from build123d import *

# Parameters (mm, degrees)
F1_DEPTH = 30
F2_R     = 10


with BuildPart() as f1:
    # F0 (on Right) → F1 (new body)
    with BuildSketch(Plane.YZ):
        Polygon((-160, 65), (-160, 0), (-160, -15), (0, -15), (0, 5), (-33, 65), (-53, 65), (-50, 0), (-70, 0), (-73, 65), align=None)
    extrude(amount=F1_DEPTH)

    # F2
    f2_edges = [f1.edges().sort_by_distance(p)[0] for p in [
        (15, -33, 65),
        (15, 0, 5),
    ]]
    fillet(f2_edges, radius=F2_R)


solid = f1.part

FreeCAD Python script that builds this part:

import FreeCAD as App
import Part
import Sketcher
from FreeCAD import Vector
Q = App.Units.Quantity


def edges_at(feature, points):
    """Names of the edges that pass closest to the given points."""
    edges = feature.Shape.Edges
    near = lambda p: min(range(len(edges)), key=lambda i: edges[i].distToShape(Part.Vertex(*p))[0])
    return sorted({f"Edge{near(p) + 1}" for p in points})

doc = App.newDocument("Part")
params = doc.addObject("Spreadsheet::Sheet", "Params")
for row, (alias, value) in enumerate([
    ("sketch1_width", "160 mm"),
    ("sketch1_width2", "20 mm"),
    ("sketch1_width3", "87 mm"),
    ("sketch1_height", "80 mm"),
    ("pad1_length", "30 mm"),
    ("fillet_radius", "10 mm"),
], start=1):
    params.set(f"A{row}", alias)
    params.set(f"B{row}", "=" + value)
    params.setAlias(f"B{row}", alias)

body = doc.addObject("PartDesign::Body", "Body")

# Sketch on YZ plane
sketch1 = doc.addObject("Sketcher::SketchObject", "Sketch")
body.addObject(sketch1)
sketch1.AttachmentSupport = (doc.YZ_Plane, [""])
sketch1.MapMode = "FlatFace"
sketch1.addGeometry(Part.LineSegment(Vector(-160, 65, 0), Vector(-160, -15, 0)), False)
sketch1.addGeometry(Part.LineSegment(Vector(-160, -15, 0), Vector(0, -15, 0)), False)
sketch1.addGeometry(Part.LineSegment(Vector(0, -15, 0), Vector(0, 5, 0)), False)
sketch1.addGeometry(Part.LineSegment(Vector(0, 5, 0), Vector(-33, 65, 0)), False)
sketch1.addGeometry(Part.LineSegment(Vector(-33, 65, 0), Vector(-53, 65, 0)), False)
sketch1.addGeometry(Part.LineSegment(Vector(-53, 65, 0), Vector(-50, 0, 0)), False)
sketch1.addGeometry(Part.LineSegment(Vector(-50, 0, 0), Vector(-70, 0, 0)), False)
sketch1.addGeometry(Part.LineSegment(Vector(-70, 0, 0), Vector(-73, 65, 0)), False)
sketch1.addGeometry(Part.LineSegment(Vector(-73, 65, 0), Vector(-160, 65, 0)), False)
sketch1.addConstraint(Sketcher.Constraint("Coincident", 0, 2, 1, 1))
sketch1.addConstraint(Sketcher.Constraint("Coincident", 1, 2, 2, 1))
sketch1.addConstraint(Sketcher.Constraint("Coincident", 2, 2, 3, 1))
sketch1.addConstraint(Sketcher.Constraint("Coincident", 3, 2, 4, 1))
sketch1.addConstraint(Sketcher.Constraint("Coincident", 4, 2, 5, 1))
sketch1.addConstraint(Sketcher.Constraint("Coincident", 5, 2, 6, 1))
sketch1.addConstraint(Sketcher.Constraint("Coincident", 6, 2, 7, 1))
sketch1.addConstraint(Sketcher.Constraint("Coincident", 7, 2, 8, 1))
sketch1.addConstraint(Sketcher.Constraint("Coincident", 8, 2, 0, 1))
sketch1.addConstraint(Sketcher.Constraint("Vertical", 0))
sketch1.addConstraint(Sketcher.Constraint("Horizontal", 1))
sketch1.addConstraint(Sketcher.Constraint("Vertical", 2))
sketch1.addConstraint(Sketcher.Constraint("Horizontal", 4))
sketch1.addConstraint(Sketcher.Constraint("Horizontal", 6))
sketch1.addConstraint(Sketcher.Constraint("Horizontal", 8))
sketch1.addConstraint(Sketcher.Constraint("PointOnObject", 1, 2, -2))
sketch1.addConstraint(Sketcher.Constraint("PointOnObject", 5, 2, -1))
sketch1.addConstraint(Sketcher.Constraint("Parallel", 5, 7))
sketch1.addConstraint(Sketcher.Constraint("Horizontal", 4, 2, 7, 2))
sketch1.addConstraint(Sketcher.Constraint("Equal", 4, 6))
sketch1.addConstraint(Sketcher.Constraint("Equal", 6, 2))
sketch1.addConstraint(Sketcher.Constraint("DistanceX", 1, 1, 1, 2, Q("160 mm")))
sketch1.addConstraint(Sketcher.Constraint("DistanceX", 4, 2, 4, 1, Q("20 mm")))
sketch1.addConstraint(Sketcher.Constraint("DistanceX", 8, 2, 8, 1, Q("87 mm")))
sketch1.addConstraint(Sketcher.Constraint("DistanceY", 0, 2, 0, 1, Q("80 mm")))
sketch1.addConstraint(Sketcher.Constraint("DistanceY", 0, 2, -1, 1, Q("15 mm")))
sketch1.addConstraint(Sketcher.Constraint("DistanceX", 5, 2, -1, 1, Q("50 mm")))
sketch1.setExpression("Constraints[21]", "Params.sketch1_width")
sketch1.setExpression("Constraints[22]", "Params.sketch1_width2")
sketch1.setExpression("Constraints[23]", "Params.sketch1_width3")
sketch1.setExpression("Constraints[24]", "Params.sketch1_height")
pad1 = doc.addObject("PartDesign::Pad", "Pad")
body.addObject(pad1)
pad1.Profile = sketch1
pad1.setExpression("Length", "Params.pad1_length")
doc.recompute()

fillet = doc.addObject("PartDesign::Fillet", "Fillet")
body.addObject(fillet)
fillet.Base = (pad1, edges_at(pad1, [(15, -33, 65), (15, 0, 5)]))
fillet.setExpression("Radius", "Params.fillet_radius")

doc.recompute()
